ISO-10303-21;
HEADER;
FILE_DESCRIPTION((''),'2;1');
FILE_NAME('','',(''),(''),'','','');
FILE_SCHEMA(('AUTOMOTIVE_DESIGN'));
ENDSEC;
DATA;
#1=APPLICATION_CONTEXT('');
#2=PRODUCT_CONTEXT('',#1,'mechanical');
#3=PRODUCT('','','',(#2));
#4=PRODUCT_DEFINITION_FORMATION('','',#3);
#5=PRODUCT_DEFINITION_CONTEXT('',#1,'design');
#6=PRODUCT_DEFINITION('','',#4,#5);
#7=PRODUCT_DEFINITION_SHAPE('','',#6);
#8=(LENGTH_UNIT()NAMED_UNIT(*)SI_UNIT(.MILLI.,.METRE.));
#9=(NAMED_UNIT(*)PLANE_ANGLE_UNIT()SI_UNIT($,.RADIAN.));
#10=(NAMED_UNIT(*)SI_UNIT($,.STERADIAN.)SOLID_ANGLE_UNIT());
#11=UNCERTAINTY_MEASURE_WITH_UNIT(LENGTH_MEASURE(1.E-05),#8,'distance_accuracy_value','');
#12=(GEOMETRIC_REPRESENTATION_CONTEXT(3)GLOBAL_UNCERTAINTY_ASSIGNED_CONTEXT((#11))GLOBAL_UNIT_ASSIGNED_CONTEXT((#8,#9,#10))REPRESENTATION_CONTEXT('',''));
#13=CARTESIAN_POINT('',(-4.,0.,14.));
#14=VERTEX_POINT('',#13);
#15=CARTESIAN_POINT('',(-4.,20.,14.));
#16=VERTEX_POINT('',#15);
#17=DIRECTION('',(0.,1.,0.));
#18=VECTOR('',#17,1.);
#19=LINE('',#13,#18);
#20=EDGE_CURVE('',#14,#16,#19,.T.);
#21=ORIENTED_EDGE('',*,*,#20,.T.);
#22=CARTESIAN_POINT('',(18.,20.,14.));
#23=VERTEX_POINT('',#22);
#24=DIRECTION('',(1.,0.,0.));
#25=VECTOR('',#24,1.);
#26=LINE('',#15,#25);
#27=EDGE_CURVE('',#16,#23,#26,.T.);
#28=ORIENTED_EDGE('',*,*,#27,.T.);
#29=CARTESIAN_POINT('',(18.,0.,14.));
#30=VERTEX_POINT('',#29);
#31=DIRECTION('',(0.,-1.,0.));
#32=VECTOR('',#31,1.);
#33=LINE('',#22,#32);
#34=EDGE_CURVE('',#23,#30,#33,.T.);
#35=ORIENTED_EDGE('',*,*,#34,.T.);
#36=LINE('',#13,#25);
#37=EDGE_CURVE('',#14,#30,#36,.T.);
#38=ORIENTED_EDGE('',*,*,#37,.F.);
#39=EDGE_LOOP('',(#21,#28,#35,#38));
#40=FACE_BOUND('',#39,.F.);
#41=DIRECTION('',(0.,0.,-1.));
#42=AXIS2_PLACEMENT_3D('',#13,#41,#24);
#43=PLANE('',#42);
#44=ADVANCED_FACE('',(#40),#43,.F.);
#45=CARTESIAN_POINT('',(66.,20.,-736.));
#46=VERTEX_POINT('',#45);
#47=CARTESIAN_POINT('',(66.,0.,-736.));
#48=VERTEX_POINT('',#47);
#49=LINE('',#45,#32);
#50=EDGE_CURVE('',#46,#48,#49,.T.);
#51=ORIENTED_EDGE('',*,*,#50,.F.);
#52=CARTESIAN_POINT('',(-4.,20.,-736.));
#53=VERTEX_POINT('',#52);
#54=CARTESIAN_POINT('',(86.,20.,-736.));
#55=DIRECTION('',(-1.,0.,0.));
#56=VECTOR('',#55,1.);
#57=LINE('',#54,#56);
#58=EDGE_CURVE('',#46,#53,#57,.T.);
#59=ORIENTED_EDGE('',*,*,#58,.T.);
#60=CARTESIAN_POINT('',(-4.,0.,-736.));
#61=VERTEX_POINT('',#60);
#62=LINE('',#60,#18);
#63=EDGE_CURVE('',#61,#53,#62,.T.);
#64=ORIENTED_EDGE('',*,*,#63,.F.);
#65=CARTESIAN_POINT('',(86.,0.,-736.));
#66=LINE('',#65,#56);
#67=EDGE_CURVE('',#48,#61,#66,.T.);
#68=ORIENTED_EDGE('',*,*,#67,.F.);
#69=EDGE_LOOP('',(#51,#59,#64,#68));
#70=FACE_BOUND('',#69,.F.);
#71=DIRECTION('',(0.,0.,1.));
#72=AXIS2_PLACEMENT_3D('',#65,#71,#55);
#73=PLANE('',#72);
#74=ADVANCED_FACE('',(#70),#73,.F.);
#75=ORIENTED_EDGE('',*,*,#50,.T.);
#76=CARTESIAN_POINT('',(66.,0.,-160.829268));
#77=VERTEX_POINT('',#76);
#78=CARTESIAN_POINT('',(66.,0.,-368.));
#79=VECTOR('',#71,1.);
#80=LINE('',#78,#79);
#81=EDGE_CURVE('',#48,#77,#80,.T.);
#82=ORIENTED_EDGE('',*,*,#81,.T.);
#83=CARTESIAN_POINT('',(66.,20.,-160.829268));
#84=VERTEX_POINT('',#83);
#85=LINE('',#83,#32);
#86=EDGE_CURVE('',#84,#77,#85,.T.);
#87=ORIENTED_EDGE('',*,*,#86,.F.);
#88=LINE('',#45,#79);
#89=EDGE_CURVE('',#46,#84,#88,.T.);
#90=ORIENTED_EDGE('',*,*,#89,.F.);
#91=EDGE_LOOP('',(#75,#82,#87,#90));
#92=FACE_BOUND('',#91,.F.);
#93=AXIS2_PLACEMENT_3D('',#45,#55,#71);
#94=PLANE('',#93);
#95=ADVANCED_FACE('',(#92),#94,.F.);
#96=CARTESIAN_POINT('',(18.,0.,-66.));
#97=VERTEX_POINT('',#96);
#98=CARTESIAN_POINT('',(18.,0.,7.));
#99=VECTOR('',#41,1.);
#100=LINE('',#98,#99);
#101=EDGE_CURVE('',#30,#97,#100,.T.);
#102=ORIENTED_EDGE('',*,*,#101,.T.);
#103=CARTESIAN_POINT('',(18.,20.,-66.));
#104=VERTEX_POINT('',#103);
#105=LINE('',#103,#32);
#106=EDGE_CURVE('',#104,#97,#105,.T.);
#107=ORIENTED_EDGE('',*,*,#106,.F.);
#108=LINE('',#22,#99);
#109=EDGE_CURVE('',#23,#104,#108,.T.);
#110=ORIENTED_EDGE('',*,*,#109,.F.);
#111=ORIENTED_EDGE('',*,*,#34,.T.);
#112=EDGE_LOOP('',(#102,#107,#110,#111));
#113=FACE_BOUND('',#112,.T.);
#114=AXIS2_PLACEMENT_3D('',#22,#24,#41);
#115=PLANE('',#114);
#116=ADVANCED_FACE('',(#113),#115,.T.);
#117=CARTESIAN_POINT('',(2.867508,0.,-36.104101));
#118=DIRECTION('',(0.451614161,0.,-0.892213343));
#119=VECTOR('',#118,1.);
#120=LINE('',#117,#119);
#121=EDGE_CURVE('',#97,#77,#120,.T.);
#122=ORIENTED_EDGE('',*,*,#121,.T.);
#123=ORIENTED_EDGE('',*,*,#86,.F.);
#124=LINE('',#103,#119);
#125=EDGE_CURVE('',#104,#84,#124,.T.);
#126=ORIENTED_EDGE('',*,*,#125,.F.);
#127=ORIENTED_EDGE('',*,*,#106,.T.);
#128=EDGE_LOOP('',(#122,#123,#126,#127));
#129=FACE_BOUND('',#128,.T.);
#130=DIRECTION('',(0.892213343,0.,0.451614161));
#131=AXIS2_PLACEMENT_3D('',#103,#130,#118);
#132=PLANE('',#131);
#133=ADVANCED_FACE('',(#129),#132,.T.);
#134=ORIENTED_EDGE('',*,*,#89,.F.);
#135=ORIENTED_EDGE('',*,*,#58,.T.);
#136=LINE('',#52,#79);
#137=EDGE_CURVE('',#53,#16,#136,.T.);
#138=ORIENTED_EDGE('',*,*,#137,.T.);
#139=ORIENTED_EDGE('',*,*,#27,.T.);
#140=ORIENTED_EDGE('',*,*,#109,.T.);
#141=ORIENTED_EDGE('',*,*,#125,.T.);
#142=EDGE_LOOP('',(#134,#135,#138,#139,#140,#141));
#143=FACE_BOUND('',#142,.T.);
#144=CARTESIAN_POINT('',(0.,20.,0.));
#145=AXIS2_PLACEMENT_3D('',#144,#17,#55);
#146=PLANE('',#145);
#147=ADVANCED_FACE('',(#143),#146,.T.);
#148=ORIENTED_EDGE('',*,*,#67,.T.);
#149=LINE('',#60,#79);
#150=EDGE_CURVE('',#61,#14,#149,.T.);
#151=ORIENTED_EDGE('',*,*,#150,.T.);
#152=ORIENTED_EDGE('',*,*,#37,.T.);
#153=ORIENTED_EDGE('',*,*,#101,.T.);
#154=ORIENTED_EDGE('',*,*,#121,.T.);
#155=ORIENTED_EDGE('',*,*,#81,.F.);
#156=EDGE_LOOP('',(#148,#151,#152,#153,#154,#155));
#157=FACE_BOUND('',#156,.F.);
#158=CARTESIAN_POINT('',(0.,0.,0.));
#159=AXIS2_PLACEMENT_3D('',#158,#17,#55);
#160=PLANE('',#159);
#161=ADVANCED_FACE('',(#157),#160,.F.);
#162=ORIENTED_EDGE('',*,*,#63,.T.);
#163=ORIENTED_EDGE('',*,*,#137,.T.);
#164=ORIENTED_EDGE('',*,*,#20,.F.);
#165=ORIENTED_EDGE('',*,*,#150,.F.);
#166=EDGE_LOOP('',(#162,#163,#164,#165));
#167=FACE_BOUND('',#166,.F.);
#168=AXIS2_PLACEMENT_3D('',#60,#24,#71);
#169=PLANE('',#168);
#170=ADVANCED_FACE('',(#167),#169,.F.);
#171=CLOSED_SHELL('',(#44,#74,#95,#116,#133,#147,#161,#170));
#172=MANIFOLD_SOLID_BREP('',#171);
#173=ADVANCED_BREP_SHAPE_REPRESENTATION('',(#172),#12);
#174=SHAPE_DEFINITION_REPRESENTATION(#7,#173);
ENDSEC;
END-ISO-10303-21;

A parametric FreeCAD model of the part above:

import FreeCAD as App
import Part
import Sketcher


def add_polygon(sketch, points):
    """Adds a closed chain of lines whose ends are joined by coincident constraints."""
    first, n = sketch.GeometryCount, len(points)
    for a, b in zip(points, points[1:] + points[:1]):
        sketch.addGeometry(Part.LineSegment(App.Vector(*a, 0), App.Vector(*b, 0)), False)
    for i in range(n):
        sketch.addConstraint(Sketcher.Constraint("Coincident", first + i, 2, first + (i + 1) % n, 1))

doc = App.newDocument("Part")
body = doc.addObject("PartDesign::Body", "Body")

# Sketch on XZ plane
sketch1 = body.newObject("Sketcher::SketchObject", "Sketch")
sketch1.AttachmentSupport = (doc.getObject("XZ_Plane"), [""])
sketch1.MapMode = "FlatFace"
add_polygon(sketch1, [(-4, -736), (-4, 14), (86, 14), (86, -736)])  # lines 0-3
sketch1.addConstraint([
    Sketcher.Constraint("Vertical", 0),
    Sketcher.Constraint("Horizontal", 1),
    Sketcher.Constraint("Vertical", 2),
    Sketcher.Constraint("Horizontal", 3),
    Sketcher.Constraint("DistanceX", 1, 1, 1, 2, 90.0),
    Sketcher.Constraint("DistanceY", 0, 1, 0, 2, 750.0),
    Sketcher.Constraint("DistanceX", 0, 2, -1, 1, 4.0),
    Sketcher.Constraint("DistanceY", -1, 1, 0, 2, 14.0),
])
pad1 = body.newObject("PartDesign::Pad", "Pad")
pad1.Profile = sketch1
pad1.Length = 20
pad1.Reversed = True

# Sketch on XZ plane
sketch2 = body.newObject("Sketcher::SketchObject", "Sketch001")
sketch2.AttachmentSupport = (doc.getObject("XZ_Plane"), [""])
sketch2.MapMode = "FlatFace"
sketch2.AttachmentOffset = App.Placement(App.Vector(0, 0, -20), App.Rotation())
add_polygon(sketch2, [(100, 14), (100, -228), (18, -66), (18, 14)])  # lines 0-3
sketch2.addConstraint([
    Sketcher.Constraint("Vertical", 0),
    Sketcher.Constraint("Vertical", 2),
    Sketcher.Constraint("Horizontal", 3),
    Sketcher.Constraint("DistanceX", 3, 1, 3, 2, 82.0),
    Sketcher.Constraint("DistanceY", 2, 1, 2, 2, 80.0),
    Sketcher.Constraint("DistanceY", 0, 2, 1, 2, 162.0),
    Sketcher.Constraint("DistanceX", -1, 1, 0, 2, 100.0),
    Sketcher.Constraint("DistanceY", 0, 2, -1, 1, 228.0),
])
pocket1 = body.newObject("PartDesign::Pocket", "Pocket")
pocket1.Profile = sketch2
pocket1.Length = 25
pocket1.Reversed = True

# Sketch on XZ plane
sketch3 = body.newObject("Sketcher::SketchObject", "Sketch002")
sketch3.AttachmentSupport = (doc.getObject("XZ_Plane"), [""])
sketch3.MapMode = "FlatFace"
sketch3.AttachmentOffset = App.Placement(App.Vector(0, 0, -20), App.Rotation())
add_polygon(sketch3, [(86, 31), (86, -736), (66, -736), (66, 31)])  # lines 0-3
sketch3.addConstraint([
    Sketcher.Constraint("Vertical", 0),
    Sketcher.Constraint("Horizontal", 1),
    Sketcher.Constraint("Vertical", 2),
    Sketcher.Constraint("Horizontal", 3),
    Sketcher.Constraint("DistanceX", 1, 2, 1, 1, 20.0),
    Sketcher.Constraint("DistanceY", 0, 2, 0, 1, 767.0),
    Sketcher.Constraint("DistanceX", -1, 1, 0, 2, 86.0),
    Sketcher.Constraint("DistanceY", 0, 2, -1, 1, 736.0),
])
pocket2 = body.newObject("PartDesign::Pocket", "Pocket001")
pocket2.Profile = sketch3
pocket2.Length = 30
pocket2.Reversed = True

doc.recompute()
